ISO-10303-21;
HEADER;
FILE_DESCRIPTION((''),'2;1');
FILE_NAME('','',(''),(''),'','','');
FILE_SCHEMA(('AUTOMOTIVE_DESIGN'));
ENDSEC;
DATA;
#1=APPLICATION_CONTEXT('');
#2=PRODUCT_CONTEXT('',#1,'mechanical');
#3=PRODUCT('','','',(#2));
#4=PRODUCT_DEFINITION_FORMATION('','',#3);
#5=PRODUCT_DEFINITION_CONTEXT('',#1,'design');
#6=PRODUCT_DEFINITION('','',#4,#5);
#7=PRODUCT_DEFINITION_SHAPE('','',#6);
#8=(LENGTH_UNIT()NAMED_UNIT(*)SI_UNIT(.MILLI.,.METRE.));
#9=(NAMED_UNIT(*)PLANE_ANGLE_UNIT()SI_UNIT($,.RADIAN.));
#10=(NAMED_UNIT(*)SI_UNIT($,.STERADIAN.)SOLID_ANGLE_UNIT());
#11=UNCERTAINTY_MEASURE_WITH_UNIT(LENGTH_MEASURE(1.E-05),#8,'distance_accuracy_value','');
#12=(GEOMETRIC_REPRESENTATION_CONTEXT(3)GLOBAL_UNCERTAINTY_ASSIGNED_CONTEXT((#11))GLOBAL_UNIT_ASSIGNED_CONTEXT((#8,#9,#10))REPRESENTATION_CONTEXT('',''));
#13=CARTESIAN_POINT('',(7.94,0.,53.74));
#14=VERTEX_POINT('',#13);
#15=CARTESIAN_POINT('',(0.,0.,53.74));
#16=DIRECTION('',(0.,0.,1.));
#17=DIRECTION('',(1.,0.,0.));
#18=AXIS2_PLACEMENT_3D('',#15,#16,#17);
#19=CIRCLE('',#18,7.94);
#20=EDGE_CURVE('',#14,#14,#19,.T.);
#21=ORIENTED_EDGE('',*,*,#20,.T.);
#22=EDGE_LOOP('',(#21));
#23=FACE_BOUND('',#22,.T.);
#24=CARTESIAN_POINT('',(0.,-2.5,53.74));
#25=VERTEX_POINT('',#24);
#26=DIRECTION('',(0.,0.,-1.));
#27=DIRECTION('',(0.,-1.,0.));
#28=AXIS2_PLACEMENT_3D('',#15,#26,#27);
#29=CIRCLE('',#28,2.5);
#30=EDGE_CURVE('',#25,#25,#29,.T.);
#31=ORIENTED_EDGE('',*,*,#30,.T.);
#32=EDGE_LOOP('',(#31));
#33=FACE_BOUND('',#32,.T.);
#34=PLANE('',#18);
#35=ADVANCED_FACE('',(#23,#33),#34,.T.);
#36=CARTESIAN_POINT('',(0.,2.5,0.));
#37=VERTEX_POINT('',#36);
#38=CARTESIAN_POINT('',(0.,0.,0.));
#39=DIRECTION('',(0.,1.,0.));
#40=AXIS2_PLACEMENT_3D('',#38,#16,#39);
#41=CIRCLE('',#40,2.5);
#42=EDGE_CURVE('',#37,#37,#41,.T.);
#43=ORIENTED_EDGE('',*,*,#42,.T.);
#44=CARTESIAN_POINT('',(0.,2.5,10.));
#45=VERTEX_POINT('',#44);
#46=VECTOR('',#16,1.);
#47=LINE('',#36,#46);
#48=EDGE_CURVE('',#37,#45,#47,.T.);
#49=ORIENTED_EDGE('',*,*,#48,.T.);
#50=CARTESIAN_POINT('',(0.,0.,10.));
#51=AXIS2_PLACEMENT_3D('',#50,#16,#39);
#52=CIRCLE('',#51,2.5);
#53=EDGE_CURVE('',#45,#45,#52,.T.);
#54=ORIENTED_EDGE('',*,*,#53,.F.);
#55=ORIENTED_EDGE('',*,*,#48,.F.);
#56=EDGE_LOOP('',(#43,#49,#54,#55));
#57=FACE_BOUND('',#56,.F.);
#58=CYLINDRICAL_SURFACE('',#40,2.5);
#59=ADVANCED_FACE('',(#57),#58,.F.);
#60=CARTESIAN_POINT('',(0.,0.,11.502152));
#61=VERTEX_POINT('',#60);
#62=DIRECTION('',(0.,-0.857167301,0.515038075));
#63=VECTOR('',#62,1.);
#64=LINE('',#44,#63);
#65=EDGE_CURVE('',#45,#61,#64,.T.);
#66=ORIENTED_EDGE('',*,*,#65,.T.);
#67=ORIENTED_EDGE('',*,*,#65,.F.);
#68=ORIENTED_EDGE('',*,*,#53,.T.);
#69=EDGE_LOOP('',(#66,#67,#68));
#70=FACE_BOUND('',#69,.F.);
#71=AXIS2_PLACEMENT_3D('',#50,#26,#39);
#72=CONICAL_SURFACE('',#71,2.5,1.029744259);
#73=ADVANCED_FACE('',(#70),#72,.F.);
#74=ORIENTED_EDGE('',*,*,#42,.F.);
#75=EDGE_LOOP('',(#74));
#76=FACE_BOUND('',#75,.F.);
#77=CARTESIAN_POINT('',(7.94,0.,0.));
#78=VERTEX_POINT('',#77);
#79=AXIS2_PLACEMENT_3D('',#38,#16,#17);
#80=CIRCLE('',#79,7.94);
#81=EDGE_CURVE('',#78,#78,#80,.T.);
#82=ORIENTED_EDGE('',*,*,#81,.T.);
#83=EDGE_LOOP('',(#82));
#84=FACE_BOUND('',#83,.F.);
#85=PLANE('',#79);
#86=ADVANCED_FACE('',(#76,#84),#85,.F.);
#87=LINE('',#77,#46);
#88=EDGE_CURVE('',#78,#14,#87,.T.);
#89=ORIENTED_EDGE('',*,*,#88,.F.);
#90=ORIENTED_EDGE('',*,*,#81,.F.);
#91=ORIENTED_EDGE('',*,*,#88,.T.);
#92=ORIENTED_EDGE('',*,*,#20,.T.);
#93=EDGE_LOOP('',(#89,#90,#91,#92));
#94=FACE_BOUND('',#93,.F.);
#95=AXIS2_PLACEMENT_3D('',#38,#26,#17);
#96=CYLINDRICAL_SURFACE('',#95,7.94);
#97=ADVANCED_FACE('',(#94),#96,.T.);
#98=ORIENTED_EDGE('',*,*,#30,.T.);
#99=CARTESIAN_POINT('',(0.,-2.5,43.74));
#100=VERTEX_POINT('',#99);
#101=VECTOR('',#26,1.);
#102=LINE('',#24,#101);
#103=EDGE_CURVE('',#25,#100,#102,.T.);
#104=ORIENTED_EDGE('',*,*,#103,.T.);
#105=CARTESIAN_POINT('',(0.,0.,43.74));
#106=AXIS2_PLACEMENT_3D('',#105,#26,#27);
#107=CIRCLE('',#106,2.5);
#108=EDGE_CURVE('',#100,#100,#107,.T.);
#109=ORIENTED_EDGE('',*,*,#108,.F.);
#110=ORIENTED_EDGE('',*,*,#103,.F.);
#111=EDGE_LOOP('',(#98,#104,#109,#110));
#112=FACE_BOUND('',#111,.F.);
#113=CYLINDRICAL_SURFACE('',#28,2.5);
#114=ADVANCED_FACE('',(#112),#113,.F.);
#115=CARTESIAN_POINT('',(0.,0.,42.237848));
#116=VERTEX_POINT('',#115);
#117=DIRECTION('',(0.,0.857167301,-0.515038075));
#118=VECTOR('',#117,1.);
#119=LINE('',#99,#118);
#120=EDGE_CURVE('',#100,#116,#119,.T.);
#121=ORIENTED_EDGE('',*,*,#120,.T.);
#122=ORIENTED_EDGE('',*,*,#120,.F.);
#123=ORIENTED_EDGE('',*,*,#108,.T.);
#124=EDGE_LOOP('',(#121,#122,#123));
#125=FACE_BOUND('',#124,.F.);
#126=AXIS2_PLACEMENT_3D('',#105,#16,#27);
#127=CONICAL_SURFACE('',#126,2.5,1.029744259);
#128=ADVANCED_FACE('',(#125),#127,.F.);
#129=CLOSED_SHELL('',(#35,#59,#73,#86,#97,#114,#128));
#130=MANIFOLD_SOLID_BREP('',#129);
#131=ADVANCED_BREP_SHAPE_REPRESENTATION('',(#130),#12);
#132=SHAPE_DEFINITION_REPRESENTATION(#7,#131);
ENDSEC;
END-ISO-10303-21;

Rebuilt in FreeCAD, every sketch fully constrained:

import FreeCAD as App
import Part
import Sketcher
from FreeCAD import Vector

doc = App.newDocument("Part")
body = doc.addObject("PartDesign::Body", "Body")

# Sketch on XY plane
sketch1 = body.newObject("Sketcher::SketchObject", "Sketch")
sketch1.AttachmentSupport = (doc.getObject("XY_Plane"), [""])
sketch1.MapMode = "FlatFace"
sketch1.addGeometry(Part.Circle(Vector(0, 0, 0), Vector(0, 0, 1), 8), False)
sketch1.addConstraint([
    Sketcher.Constraint("Coincident", 0, 3, -1, 1),
    Sketcher.Constraint("Diameter", 0, 15.88),
])
pad1 = body.newObject("PartDesign::Pad", "Pad")
pad1.Profile = sketch1
pad1.Length = 53.74

# Sketch on XY plane
sketch2 = body.newObject("Sketcher::SketchObject", "Sketch001")
sketch2.AttachmentSupport = (doc.getObject("XY_Plane"), [""])
sketch2.MapMode = "FlatFace"
sketch2.addGeometry(Part.Circle(Vector(0, 0, 0), Vector(0, 0, 1), 2.5), False)
sketch2.addConstraint([
    Sketcher.Constraint("Coincident", 0, 3, -1, 1),
    Sketcher.Constraint("Diameter", 0, 5.0),
])
doc.recompute()
hole = body.newObject("PartDesign::Hole", "Hole")
hole.Profile = sketch2
hole.ThreadType = "None"
hole.Diameter = 5
hole.DepthType = "Dimension"
hole.Depth = 10
hole.DrillPoint = "Angled"
hole.DrillPointAngle = 118
hole.Reversed = True

# Sketch on XY plane
sketch3 = body.newObject("Sketcher::SketchObject", "Sketch002")
sketch3.AttachmentSupport = (doc.getObject("XY_Plane"), [""])
sketch3.MapMode = "FlatFace"
sketch3.AttachmentOffset = App.Placement(Vector(0, 0, 53.74), App.Rotation())
sketch3.addGeometry(Part.Circle(Vector(0, 0, 0), Vector(0, 0, 1), 2.5), False)
sketch3.addConstraint([
    Sketcher.Constraint("Coincident", 0, 3, -1, 1),
    Sketcher.Constraint("Diameter", 0, 5.0),
])
doc.recompute()
hole2 = body.newObject("PartDesign::Hole", "Hole001")
hole2.Profile = sketch3
hole2.ThreadType = "None"
hole2.Diameter = 5
hole2.DepthType = "Dimension"
hole2.Depth = 10
hole2.DrillPoint = "Angled"
hole2.DrillPointAngle = 118

doc.recompute()
